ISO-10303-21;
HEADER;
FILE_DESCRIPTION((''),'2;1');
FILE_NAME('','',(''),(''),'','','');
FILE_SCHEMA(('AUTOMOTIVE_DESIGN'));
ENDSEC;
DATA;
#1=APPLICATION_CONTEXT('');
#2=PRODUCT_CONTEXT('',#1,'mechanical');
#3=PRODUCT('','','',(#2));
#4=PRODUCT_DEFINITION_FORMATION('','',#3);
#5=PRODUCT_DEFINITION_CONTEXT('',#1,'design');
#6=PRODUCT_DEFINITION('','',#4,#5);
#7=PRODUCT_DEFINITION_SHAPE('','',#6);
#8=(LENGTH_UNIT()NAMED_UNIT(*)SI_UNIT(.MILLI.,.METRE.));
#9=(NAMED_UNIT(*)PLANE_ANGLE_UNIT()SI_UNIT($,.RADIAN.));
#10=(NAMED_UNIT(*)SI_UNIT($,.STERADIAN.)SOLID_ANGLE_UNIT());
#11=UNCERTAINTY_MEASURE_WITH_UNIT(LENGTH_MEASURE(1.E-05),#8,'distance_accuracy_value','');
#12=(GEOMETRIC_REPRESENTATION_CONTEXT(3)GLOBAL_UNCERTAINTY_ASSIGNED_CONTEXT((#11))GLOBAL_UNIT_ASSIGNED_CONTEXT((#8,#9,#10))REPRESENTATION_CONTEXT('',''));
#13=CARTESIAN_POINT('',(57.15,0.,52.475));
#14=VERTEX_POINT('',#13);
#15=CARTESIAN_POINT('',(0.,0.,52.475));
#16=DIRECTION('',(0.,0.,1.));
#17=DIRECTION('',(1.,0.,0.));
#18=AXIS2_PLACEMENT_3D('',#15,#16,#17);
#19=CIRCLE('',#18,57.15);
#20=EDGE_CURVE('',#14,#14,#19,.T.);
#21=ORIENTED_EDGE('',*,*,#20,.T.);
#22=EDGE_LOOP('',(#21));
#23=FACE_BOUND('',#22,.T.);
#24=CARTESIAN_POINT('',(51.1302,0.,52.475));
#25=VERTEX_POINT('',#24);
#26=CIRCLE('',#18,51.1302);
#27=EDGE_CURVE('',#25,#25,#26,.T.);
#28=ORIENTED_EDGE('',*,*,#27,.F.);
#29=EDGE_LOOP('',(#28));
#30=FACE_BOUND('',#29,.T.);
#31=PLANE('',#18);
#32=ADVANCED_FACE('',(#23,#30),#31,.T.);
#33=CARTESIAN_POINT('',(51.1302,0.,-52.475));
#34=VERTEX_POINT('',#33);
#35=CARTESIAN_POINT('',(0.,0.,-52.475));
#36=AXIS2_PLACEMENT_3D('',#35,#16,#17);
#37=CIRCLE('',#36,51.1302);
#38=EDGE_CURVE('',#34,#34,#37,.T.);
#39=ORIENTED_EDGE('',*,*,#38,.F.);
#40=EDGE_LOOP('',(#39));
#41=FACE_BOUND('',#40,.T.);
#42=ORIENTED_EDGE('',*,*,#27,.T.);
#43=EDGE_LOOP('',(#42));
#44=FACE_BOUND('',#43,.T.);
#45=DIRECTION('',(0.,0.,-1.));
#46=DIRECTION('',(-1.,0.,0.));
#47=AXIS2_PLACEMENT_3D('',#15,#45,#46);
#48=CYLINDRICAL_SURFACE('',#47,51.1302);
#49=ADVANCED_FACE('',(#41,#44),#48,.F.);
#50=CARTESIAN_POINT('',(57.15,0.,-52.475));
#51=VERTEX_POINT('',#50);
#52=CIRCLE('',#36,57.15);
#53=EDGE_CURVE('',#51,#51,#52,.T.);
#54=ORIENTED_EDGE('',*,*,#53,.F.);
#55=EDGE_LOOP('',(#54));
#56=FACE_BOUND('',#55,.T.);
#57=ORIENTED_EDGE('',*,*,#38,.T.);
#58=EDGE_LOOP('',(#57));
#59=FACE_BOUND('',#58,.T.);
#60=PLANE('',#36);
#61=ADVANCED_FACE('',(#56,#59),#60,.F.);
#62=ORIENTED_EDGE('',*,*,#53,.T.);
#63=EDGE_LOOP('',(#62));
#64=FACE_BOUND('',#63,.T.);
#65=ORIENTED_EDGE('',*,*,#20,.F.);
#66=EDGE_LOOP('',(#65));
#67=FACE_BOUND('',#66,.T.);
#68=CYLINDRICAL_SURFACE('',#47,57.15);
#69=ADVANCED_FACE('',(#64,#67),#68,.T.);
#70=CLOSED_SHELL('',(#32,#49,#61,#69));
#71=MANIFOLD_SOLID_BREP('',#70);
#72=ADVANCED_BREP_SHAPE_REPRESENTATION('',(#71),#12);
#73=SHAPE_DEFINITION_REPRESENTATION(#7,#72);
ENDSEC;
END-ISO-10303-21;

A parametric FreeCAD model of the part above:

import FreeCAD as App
import Part
import Sketcher
from FreeCAD import Vector
Q = App.Units.Quantity

doc = App.newDocument("Part")
body = doc.addObject("PartDesign::Body", "Body")

sketch1 = doc.addObject("Sketcher::SketchObject", "Sketch")
body.addObject(sketch1)
sketch1.AttachmentSupport = (doc.XY_Plane, [""])
sketch1.MapMode = "FlatFace"
sketch1.addGeometry(Part.Circle(Vector(0, 0, 0), Vector(0, 0, 1), 57.15), False)
sketch1.addGeometry(Part.Circle(Vector(0, 0, 0), Vector(0, 0, 1), 51.1302), False)
sketch1.addConstraint(Sketcher.Constraint("Coincident", 0, 3, -1, 1))
sketch1.addConstraint(Sketcher.Constraint("Coincident", 1, 3, -1, 1))
sketch1.addConstraint(Sketcher.Constraint("Diameter", 0, Q("4.5 in")))
sketch1.addConstraint(Sketcher.Constraint("Diameter", 1, Q("4.026 in")))
pad1 = doc.addObject("PartDesign::Pad", "Pad")
body.addObject(pad1)
pad1.Profile = sketch1
pad1.Length = 104.95
pad1.Midplane = True

doc.recompute()
